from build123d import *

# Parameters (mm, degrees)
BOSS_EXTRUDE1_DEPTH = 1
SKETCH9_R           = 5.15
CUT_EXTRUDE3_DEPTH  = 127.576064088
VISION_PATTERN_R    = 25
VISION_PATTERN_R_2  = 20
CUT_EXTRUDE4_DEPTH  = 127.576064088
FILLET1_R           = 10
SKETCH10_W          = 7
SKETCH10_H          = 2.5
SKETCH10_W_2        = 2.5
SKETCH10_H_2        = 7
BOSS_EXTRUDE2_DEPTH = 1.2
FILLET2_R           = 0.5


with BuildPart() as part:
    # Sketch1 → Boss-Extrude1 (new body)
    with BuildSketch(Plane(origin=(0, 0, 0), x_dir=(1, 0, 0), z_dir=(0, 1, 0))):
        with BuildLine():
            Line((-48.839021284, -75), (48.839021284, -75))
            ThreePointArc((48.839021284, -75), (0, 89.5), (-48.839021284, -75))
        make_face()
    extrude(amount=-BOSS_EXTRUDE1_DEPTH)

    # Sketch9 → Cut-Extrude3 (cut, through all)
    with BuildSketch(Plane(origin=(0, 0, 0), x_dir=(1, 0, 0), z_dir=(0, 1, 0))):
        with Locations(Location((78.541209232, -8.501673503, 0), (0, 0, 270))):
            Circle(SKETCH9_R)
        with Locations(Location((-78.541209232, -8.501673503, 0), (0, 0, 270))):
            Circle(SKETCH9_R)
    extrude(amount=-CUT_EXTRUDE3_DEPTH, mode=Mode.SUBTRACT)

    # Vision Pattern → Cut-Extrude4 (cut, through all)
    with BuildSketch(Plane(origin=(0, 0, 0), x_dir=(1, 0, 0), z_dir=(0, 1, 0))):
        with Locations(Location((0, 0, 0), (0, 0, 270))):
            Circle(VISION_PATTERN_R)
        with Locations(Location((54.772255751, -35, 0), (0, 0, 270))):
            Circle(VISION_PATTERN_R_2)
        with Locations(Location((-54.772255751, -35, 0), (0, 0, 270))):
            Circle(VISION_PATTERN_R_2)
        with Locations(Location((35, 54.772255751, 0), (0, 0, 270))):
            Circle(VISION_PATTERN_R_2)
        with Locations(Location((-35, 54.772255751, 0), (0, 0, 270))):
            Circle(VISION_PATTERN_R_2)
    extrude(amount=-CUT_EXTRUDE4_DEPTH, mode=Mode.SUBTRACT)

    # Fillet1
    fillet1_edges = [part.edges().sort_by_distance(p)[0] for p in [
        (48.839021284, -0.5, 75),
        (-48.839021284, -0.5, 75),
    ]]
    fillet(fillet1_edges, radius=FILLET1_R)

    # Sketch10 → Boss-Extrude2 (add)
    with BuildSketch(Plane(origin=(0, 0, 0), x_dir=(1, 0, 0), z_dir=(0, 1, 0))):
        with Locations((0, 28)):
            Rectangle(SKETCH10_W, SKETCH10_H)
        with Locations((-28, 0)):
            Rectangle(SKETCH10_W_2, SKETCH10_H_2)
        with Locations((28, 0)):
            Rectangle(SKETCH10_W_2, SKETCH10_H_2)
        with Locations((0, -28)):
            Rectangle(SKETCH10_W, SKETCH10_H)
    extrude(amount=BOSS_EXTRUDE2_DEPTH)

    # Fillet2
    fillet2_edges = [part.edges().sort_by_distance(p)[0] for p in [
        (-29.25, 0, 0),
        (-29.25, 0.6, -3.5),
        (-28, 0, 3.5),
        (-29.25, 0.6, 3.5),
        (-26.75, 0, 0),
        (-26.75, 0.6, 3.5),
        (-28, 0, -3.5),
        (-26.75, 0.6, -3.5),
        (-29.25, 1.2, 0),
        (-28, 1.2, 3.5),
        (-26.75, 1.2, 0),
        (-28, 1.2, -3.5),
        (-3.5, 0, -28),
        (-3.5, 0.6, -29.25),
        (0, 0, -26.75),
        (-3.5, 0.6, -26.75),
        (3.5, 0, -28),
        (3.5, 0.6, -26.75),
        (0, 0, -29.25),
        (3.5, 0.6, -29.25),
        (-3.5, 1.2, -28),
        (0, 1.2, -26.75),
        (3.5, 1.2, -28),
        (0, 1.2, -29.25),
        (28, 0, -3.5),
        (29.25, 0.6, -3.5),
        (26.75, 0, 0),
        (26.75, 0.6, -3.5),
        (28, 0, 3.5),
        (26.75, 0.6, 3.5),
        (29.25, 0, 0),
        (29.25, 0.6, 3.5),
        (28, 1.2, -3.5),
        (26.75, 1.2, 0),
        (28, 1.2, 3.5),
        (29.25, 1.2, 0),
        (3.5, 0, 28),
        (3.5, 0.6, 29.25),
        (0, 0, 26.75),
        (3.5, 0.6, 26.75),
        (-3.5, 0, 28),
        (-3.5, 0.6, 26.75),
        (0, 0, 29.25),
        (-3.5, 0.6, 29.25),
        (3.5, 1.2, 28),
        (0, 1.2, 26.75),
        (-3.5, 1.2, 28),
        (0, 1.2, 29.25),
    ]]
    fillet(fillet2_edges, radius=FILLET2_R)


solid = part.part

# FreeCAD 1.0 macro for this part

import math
import FreeCAD as App
import Part
import Sketcher
from FreeCAD import Vector


def edges_at(feature, points):
    """Names of the edges that pass closest to the given points."""
    edges = feature.Shape.Edges
    near = lambda p: min(range(len(edges)), key=lambda i: edges[i].distToShape(Part.Vertex(*p))[0])
    return sorted({f"Edge{near(p) + 1}" for p in points})


def add_polygon(sketch, points):
    """Adds a closed chain of lines whose ends are joined by coincident constraints."""
    first, n = sketch.GeometryCount, len(points)
    for a, b in zip(points, points[1:] + points[:1]):
        sketch.addGeometry(Part.LineSegment(App.Vector(*a, 0), App.Vector(*b, 0)), False)
    for i in range(n):
        sketch.addConstraint(Sketcher.Constraint("Coincident", first + i, 2, first + (i + 1) % n, 1))

doc = App.newDocument("Part")
body = doc.addObject("PartDesign::Body", "Body")

sketch1 = body.newObject("Sketcher::SketchObject", "Sketch")
sketch1.AttachmentSupport = (doc.getObject("XZ_Plane"), [""])
sketch1.MapMode = "FlatFace"
sketch1.addGeometry([
    Part.LineSegment(Vector(-49, 75, 0), Vector(49, 75, 0)),
    Part.ArcOfCircle(Part.Circle(Vector(0, 0, 0), Vector(0, 0, 1), 90), math.radians(123), math.radians(417)),
], False)
sketch1.addConstraint([
    Sketcher.Constraint("Coincident", 0, 1, 1, 1),
    Sketcher.Constraint("Coincident", 1, 2, 0, 2),
    Sketcher.Constraint("Horizontal", 0),
    Sketcher.Constraint("Coincident", 1, 3, -1, 1),
    Sketcher.Constraint("Radius", 1, 89.5),
    Sketcher.Constraint("DistanceY", -1, 1, 0, 1, 75.0),
])
pad1 = body.newObject("PartDesign::Pad", "Pad")
pad1.Profile = sketch1
pad1.Length = 1

sketch2 = body.newObject("Sketcher::SketchObject", "Sketch001")
sketch2.AttachmentSupport = (doc.getObject("XZ_Plane"), [""])
sketch2.MapMode = "FlatFace"
sketch2.addGeometry([
    Part.Circle(Vector(79, 9, 0), Vector(0, 0, 1), 5),
    Part.Circle(Vector(-79, 9, 0), Vector(0, 0, 1), 5),
], False)
sketch2.addConstraint([
    Sketcher.Constraint("Equal", 0, 1),
    Sketcher.Constraint("Symmetric", 0, 3, 1, 3, -2),
    Sketcher.Constraint("Diameter", 0, 10.3),
    Sketcher.Constraint("DistanceX", -1, 1, 0, 3, 78.541209),
    Sketcher.Constraint("DistanceY", -1, 1, 0, 3, 8.501674),
])
pocket1 = body.newObject("PartDesign::Pocket", "Pocket")
pocket1.Profile = sketch2
pocket1.Type = "ThroughAll"
pocket1.Reversed = True

sketch3 = body.newObject("Sketcher::SketchObject", "Sketch002")
sketch3.AttachmentSupport = (doc.getObject("XZ_Plane"), [""])
sketch3.MapMode = "FlatFace"
sketch3.addGeometry([
    Part.Circle(Vector(0, 0, 0), Vector(0, 0, 1), 25),
    Part.Circle(Vector(55, 35, 0), Vector(0, 0, 1), 20),
    Part.Circle(Vector(-55, 35, 0), Vector(0, 0, 1), 20),
    Part.Circle(Vector(35, -55, 0), Vector(0, 0, 1), 20),
    Part.Circle(Vector(-35, -55, 0), Vector(0, 0, 1), 20),
], False)
sketch3.addConstraint([
    Sketcher.Constraint("Coincident", 0, 3, -1, 1),
    Sketcher.Constraint("Equal", 1, 2),
    Sketcher.Constraint("Equal", 2, 3),
    Sketcher.Constraint("Equal", 3, 4),
    Sketcher.Constraint("Symmetric", 1, 3, 2, 3, -2),
    Sketcher.Constraint("Symmetric", 3, 3, 4, 3, -2),
    Sketcher.Constraint("Diameter", 0, 50.0),
    Sketcher.Constraint("Diameter", 1, 40.0),
    Sketcher.Constraint("DistanceY", -1, 1, 1, 3, 35.0),
    Sketcher.Constraint("DistanceX", -1, 1, 3, 3, 35.0),
    Sketcher.Constraint("DistanceX", 2, 3, 1, 3, 109.544512),
    Sketcher.Constraint("DistanceY", 3, 3, -1, 1, 54.772256),
])
pocket2 = body.newObject("PartDesign::Pocket", "Pocket001")
pocket2.Profile = sketch3
pocket2.Type = "ThroughAll"
pocket2.Reversed = True
doc.recompute()

fillet = body.newObject("PartDesign::Fillet", "Fillet")
fillet.Base = (pocket2, edges_at(pocket2, [(48.839, -0.5, 75), (-48.839, -0.5, 75)]))
fillet.Radius = 10

sketch4 = body.newObject("Sketcher::SketchObject", "Sketch003")
sketch4.AttachmentSupport = (doc.getObject("XZ_Plane"), [""])
sketch4.MapMode = "FlatFace"
add_polygon(sketch4, [(-3.5, -29.2), (-3.5, -26.8), (3.5, -26.8), (3.5, -29.2)])
add_polygon(sketch4, [(-29.2, -3.5), (-29.2, 3.5), (-26.8, 3.5), (-26.8, -3.5)])
add_polygon(sketch4, [(26.8, -3.5), (26.8, 3.5), (29.2, 3.5), (29.2, -3.5)])
add_polygon(sketch4, [(-3.5, 26.8), (-3.5, 29.2), (3.5, 29.2), (3.5, 26.8)])
sketch4.addConstraint([
    Sketcher.Constraint("Vertical", 0),
    Sketcher.Constraint("Horizontal", 1),
    Sketcher.Constraint("Vertical", 2),
    Sketcher.Constraint("Horizontal", 3),
    Sketcher.Constraint("Vertical", 4),
    Sketcher.Constraint("Horizontal", 5),
    Sketcher.Constraint("Vertical", 6),
    Sketcher.Constraint("Horizontal", 7),
    Sketcher.Constraint("Vertical", 8),
    Sketcher.Constraint("Horizontal", 9),
    Sketcher.Constraint("Vertical", 10),
    Sketcher.Constraint("Horizontal", 11),
    Sketcher.Constraint("Vertical", 12),
    Sketcher.Constraint("Horizontal", 13),
    Sketcher.Constraint("Vertical", 14),
    Sketcher.Constraint("Horizontal", 15),
    Sketcher.Constraint("Symmetric", 6, 2, 8, 2, -1, 1),
    Sketcher.Constraint("Symmetric", 4, 2, 10, 2, -1, 1),
    Sketcher.Constraint("Symmetric", 2, 2, 12, 2, -1, 1),
    Sketcher.Constraint("Symmetric", 0, 2, 14, 2, -1, 1),
    Sketcher.Constraint("Horizontal", 5, 2, 8, 2),
    Sketcher.Constraint("Vertical", 3, 2, 12, 2),
    Sketcher.Constraint("Equal", 11, 0),
    Sketcher.Constraint("Equal", 15, 4),
    Sketcher.Constraint("DistanceX", 1, 1, 1, 2, 7.0),
    Sketcher.Constraint("DistanceX", 5, 1, 5, 2, 2.5),
    Sketcher.Constraint("DistanceX", 5, 2, 8, 2, 53.5),
    Sketcher.Constraint("DistanceY", 0, 2, -1, 1, 26.75),
])
pad2 = body.newObject("PartDesign::Pad", "Pad001")
pad2.Profile = sketch4
pad2.Length = 1.2
pad2.Reversed = True
doc.recompute()

fillet2 = body.newObject("PartDesign::Fillet", "Fillet001")
fillet2.Base = (pad2, edges_at(pad2, [
    (-29.25, 0, 0),
    (-29.25, 0.6, -3.5),
    (-28, 0, 3.5),
    (-29.25, 0.6, 3.5),
    (-26.75, 0, 0),
    (-26.75, 0.6, 3.5),
    (-28, 0, -3.5),
    (-26.75, 0.6, -3.5),
    (-29.25, 1.2, 0),
    (-28, 1.2, 3.5),
    (-26.75, 1.2, 0),
    (-28, 1.2, -3.5),
    (-3.5, 0, -28),
    (-3.5, 0.6, -29.25),
    (0, 0, -26.75),
    (-3.5, 0.6, -26.75),
    (3.5, 0, -28),
    (3.5, 0.6, -26.75),
    (0, 0, -29.25),
    (3.5, 0.6, -29.25),
    (-3.5, 1.2, -28),
    (0, 1.2, -26.75),
    (3.5, 1.2, -28),
    (0, 1.2, -29.25),
    (28, 0, -3.5),
    (29.25, 0.6, -3.5),
    (26.75, 0, 0),
    (26.75, 0.6, -3.5),
    (28, 0, 3.5),
    (26.75, 0.6, 3.5),
    (29.25, 0, 0),
    (29.25, 0.6, 3.5),
    (28, 1.2, -3.5),
    (26.75, 1.2, 0),
    (28, 1.2, 3.5),
    (29.25, 1.2, 0),
    (3.5, 0, 28),
    (3.5, 0.6, 29.25),
    (0, 0, 26.75),
    (3.5, 0.6, 26.75),
    (-3.5, 0, 28),
    (-3.5, 0.6, 26.75),
    (0, 0, 29.25),
    (-3.5, 0.6, 29.25),
    (3.5, 1.2, 28),
    (0, 1.2, 26.75),
    (-3.5, 1.2, 28),
    (0, 1.2, 29.25),
]))
fillet2.Radius = 0.5

doc.recompute()
